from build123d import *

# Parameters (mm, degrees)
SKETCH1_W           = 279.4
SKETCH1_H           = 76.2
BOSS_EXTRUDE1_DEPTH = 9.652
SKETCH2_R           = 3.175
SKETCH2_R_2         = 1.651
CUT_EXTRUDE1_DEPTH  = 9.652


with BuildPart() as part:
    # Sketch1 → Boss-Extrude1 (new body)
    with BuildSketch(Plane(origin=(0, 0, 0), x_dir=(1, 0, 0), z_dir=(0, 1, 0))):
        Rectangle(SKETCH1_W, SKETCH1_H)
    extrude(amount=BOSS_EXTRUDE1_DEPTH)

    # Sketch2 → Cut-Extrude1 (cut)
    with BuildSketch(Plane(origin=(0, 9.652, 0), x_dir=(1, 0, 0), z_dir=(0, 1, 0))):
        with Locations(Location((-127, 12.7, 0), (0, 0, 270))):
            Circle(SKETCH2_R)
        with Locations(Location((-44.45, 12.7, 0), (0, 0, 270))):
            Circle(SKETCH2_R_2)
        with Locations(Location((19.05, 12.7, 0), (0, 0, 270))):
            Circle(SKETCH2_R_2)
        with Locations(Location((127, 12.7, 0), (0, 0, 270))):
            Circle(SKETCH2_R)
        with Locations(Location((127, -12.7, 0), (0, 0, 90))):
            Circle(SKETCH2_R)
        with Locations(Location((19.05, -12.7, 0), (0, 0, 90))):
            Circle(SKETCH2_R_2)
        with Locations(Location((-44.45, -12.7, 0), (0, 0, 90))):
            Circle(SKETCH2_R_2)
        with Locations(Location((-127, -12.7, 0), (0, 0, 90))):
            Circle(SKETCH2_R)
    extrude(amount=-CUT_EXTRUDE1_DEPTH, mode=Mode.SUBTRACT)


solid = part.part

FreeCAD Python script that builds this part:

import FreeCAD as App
import Part
import Sketcher
Q = App.Units.Quantity


def add_polygon(sketch, points):
    """Adds a closed chain of lines whose ends are joined by coincident constraints."""
    first, n = sketch.GeometryCount, len(points)
    for a, b in zip(points, points[1:] + points[:1]):
        sketch.addGeometry(Part.LineSegment(App.Vector(*a, 0), App.Vector(*b, 0)), False)
    for i in range(n):
        sketch.addConstraint(Sketcher.Constraint("Coincident", first + i, 2, first + (i + 1) % n, 1))

doc = App.newDocument("Part")
body = doc.addObject("PartDesign::Body", "Body")

# Sketch on XZ plane
sketch1 = body.newObject("Sketcher::SketchObject", "Sketch")
sketch1.AttachmentSupport = (doc.getObject("XZ_Plane"), [""])
sketch1.MapMode = "FlatFace"
add_polygon(sketch1, [(-140, -38), (-140, 38), (140, 38), (140, -38)])  # lines 0-3
sketch1.addConstraint(Sketcher.Constraint("Vertical", 0))
sketch1.addConstraint(Sketcher.Constraint("Horizontal", 1))
sketch1.addConstraint(Sketcher.Constraint("Vertical", 2))
sketch1.addConstraint(Sketcher.Constraint("Horizontal", 3))
sketch1.addConstraint(Sketcher.Constraint("Symmetric", 0, 2, 2, 2, -1, 1))
sketch1.addConstraint(Sketcher.Constraint("DistanceX", 1, 1, 1, 2, Q("11 in")))
sketch1.addConstraint(Sketcher.Constraint("DistanceY", 0, 1, 0, 2, Q("3 in")))
pad1 = body.newObject("PartDesign::Pad", "Pad")
pad1.Profile = sketch1
pad1.Length = Q("0.38 in")
pad1.Reversed = True

# Sketch on XZ plane
sketch2 = body.newObject("Sketcher::SketchObject", "Sketch001")
sketch2.AttachmentSupport = (doc.getObject("XZ_Plane"), [""])
sketch2.MapMode = "FlatFace"
sketch2.AttachmentOffset = App.Placement(App.Vector(0, 0, -0.38 * 25.4), App.Rotation())
sketch2.addGeometry(Part.Circle(App.Vector(-127, -12.7, 0), App.Vector(0, 0, 1), 3.2), False)
sketch2.addGeometry(Part.Circle(App.Vector(-44.5, -12.7, 0), App.Vector(0, 0, 1), 1.7), False)
sketch2.addGeometry(Part.Circle(App.Vector(19.1, -12.7, 0), App.Vector(0, 0, 1), 1.7), False)
sketch2.addGeometry(Part.Circle(App.Vector(127, -12.7, 0), App.Vector(0, 0, 1), 3.2), False)
sketch2.addGeometry(Part.Circle(App.Vector(127, 12.7, 0), App.Vector(0, 0, 1), 3.2), False)
sketch2.addGeometry(Part.Circle(App.Vector(19.1, 12.7, 0), App.Vector(0, 0, 1), 1.7), False)
sketch2.addGeometry(Part.Circle(App.Vector(-44.5, 12.7, 0), App.Vector(0, 0, 1), 1.7), False)
sketch2.addGeometry(Part.Circle(App.Vector(-127, 12.7, 0), App.Vector(0, 0, 1), 3.2), False)
sketch2.addConstraint(Sketcher.Constraint("Equal", 1, 2))
sketch2.addConstraint(Sketcher.Constraint("Equal", 0, 3))
sketch2.addConstraint(Sketcher.Constraint("Equal", 3, 4))
sketch2.addConstraint(Sketcher.Constraint("Equal", 2, 5))
sketch2.addConstraint(Sketcher.Constraint("Equal", 5, 6))
sketch2.addConstraint(Sketcher.Constraint("Equal", 4, 7))
sketch2.addConstraint(Sketcher.Constraint("Symmetric", 0, 3, 4, 3, -1, 1))
sketch2.addConstraint(Sketcher.Constraint("Symmetric", 3, 3, 7, 3, -1, 1))
sketch2.addConstraint(Sketcher.Constraint("Symmetric", 0, 3, 3, 3, -2))
sketch2.addConstraint(Sketcher.Constraint("Symmetric", 2, 3, 5, 3, -1))
sketch2.addConstraint(Sketcher.Constraint("Symmetric", 1, 3, 6, 3, -1))
sketch2.addConstraint(Sketcher.Constraint("Horizontal", 0, 3, 1, 3))
sketch2.addConstraint(Sketcher.Constraint("Horizontal", 1, 3, 2, 3))
sketch2.addConstraint(Sketcher.Constraint("Diameter", 0, Q("0.25 in")))
sketch2.addConstraint(Sketcher.Constraint("Diameter", 1, Q("0.13 in")))
sketch2.addConstraint(Sketcher.Constraint("DistanceX", 0, 3, -1, 1, Q("5 in")))
sketch2.addConstraint(Sketcher.Constraint("DistanceY", 3, 3, 4, 3, Q("1 in")))
sketch2.addConstraint(Sketcher.Constraint("DistanceX", 1, 3, 2, 3, Q("2.5 in")))
sketch2.addConstraint(Sketcher.Constraint("DistanceX", 1, 3, -1, 1, Q("1.75 in")))
pocket1 = body.newObject("PartDesign::Pocket", "Pocket")
pocket1.Profile = sketch2
pocket1.Length = Q("0.38 in")
pocket1.Reversed = True

doc.recompute()
